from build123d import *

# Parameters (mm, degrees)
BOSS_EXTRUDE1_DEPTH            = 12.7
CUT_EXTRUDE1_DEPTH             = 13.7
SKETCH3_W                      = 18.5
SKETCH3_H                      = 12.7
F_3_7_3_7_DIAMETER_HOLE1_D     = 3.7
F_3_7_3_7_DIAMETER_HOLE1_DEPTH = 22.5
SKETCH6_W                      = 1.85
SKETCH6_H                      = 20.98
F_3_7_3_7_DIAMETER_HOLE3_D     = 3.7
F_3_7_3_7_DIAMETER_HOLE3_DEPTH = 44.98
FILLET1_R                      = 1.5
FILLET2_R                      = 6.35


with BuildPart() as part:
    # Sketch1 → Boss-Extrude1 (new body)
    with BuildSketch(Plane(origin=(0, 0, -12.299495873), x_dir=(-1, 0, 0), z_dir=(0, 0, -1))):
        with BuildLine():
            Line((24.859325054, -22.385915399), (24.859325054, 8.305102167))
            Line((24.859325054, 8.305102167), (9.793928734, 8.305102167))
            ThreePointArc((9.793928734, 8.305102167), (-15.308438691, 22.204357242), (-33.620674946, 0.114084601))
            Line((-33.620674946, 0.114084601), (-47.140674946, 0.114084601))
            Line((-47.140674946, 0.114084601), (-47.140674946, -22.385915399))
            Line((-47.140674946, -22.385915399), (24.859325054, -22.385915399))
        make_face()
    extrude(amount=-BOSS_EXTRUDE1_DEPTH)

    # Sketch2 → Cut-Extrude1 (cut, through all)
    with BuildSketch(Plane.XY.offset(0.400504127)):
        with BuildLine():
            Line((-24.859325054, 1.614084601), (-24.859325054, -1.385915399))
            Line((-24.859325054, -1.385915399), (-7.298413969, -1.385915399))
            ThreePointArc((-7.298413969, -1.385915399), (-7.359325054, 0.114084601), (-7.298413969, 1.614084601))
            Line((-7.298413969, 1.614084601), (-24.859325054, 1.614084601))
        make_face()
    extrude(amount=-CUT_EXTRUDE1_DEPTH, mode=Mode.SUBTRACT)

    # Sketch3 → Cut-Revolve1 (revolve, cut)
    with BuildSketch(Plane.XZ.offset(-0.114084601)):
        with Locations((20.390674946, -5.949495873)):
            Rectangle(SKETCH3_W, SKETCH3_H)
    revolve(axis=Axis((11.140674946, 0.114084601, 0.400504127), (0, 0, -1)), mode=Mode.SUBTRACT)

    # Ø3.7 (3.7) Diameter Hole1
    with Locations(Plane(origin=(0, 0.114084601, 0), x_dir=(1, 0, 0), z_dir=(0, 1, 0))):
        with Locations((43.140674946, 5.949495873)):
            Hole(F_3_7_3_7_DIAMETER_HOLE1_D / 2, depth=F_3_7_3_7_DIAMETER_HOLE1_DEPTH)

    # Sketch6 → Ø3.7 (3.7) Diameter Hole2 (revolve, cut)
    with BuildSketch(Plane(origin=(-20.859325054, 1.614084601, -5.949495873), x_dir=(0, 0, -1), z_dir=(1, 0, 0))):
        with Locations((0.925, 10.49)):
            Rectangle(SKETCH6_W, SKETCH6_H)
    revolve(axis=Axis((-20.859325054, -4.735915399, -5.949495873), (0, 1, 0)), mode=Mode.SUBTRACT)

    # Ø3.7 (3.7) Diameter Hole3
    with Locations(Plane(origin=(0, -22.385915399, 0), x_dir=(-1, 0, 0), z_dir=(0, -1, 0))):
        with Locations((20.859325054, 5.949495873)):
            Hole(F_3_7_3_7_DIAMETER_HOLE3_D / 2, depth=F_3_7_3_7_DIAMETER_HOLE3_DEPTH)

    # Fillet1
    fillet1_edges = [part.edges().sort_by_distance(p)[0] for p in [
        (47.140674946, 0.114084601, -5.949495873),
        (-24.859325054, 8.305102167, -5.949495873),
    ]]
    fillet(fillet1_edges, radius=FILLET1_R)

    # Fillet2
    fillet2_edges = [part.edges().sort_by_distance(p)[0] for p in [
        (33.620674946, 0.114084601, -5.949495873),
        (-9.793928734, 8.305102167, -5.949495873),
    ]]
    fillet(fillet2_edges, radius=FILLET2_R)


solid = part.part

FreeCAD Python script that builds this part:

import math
import FreeCAD as App
import Part
import Sketcher


def edges_at(feature, points):
    """Names of the edges that pass closest to the given points."""
    edges = feature.Shape.Edges
    near = lambda p: min(range(len(edges)), key=lambda i: edges[i].distToShape(Part.Vertex(*p))[0])
    return sorted({f"Edge{near(p) + 1}" for p in points})


def add_polygon(sketch, points):
    """Adds a closed chain of lines whose ends are joined by coincident constraints."""
    first, n = sketch.GeometryCount, len(points)
    for a, b in zip(points, points[1:] + points[:1]):
        sketch.addGeometry(Part.LineSegment(App.Vector(*a, 0), App.Vector(*b, 0)), False)
    for i in range(n):
        sketch.addConstraint(Sketcher.Constraint("Coincident", first + i, 2, first + (i + 1) % n, 1))

doc = App.newDocument("Part")
params = doc.addObject("Spreadsheet::Sheet", "Params")
for row, (alias, value) in enumerate([
    ("sketch1_width", "72 mm"),
    ("sketch1_radius", "22.48 mm"),
    ("sketch1_height", "22.5 mm"),
    ("pad1_length", "12.7 mm"),
    ("sketch2_radius", "18.5 mm"),
    ("sketch2_height", "3 mm"),
    ("sketch3_width", "18.5 mm"),
    ("sketch3_height", "12.7 mm"),
    ("groove_angle", "360 deg"),
    ("sketch4_diameter", "3.7 mm"),
    ("hole_diameter", "3.7 mm"),
    ("hole_depth", "22.5 mm"),
    ("sketch5_width", "20.98 mm"),
    ("sketch5_height", "1.85 mm"),
    ("groove2_angle", "360 deg"),
    ("sketch6_diameter", "3.7 mm"),
    ("hole2_diameter", "3.7 mm"),
    ("hole2_depth", "44.98 mm"),
    ("fillet_radius", "1.5 mm"),
    ("fillet2_radius", "6.35 mm"),
], start=1):
    params.set(f"A{row}", alias)
    params.set(f"B{row}", "=" + value)
    params.setAlias(f"B{row}", alias)

body = doc.addObject("PartDesign::Body", "Body")

# Sketch on XY plane
sketch1 = body.newObject("Sketcher::SketchObject", "Sketch")
sketch1.AttachmentSupport = (doc.getObject("XY_Plane"), [""])
sketch1.MapMode = "FlatFace"
sketch1.AttachmentOffset = App.Placement(App.Vector(0, 0, -12.299496), App.Rotation())
sketch1.addGeometry(Part.LineSegment(App.Vector(-25, -22, 0), App.Vector(-25, 8, 0)), False)
sketch1.addGeometry(Part.LineSegment(App.Vector(-25, 8, 0), App.Vector(-10, 8, 0)), False)
sketch1.addGeometry(Part.ArcOfCircle(Part.Circle(App.Vector(11, 0, 0), App.Vector(0, 0, 1), 22), math.radians(0), math.radians(159)), False)
sketch1.addGeometry(Part.LineSegment(App.Vector(34, 0, 0), App.Vector(47, 0, 0)), False)
sketch1.addGeometry(Part.LineSegment(App.Vector(47, 0, 0), App.Vector(47, -22, 0)), False)
sketch1.addGeometry(Part.LineSegment(App.Vector(47, -22, 0), App.Vector(-25, -22, 0)), False)
sketch1.addConstraint(Sketcher.Constraint("Coincident", 0, 2, 1, 1))
sketch1.addConstraint(Sketcher.Constraint("Coincident", 1, 2, 2, 2))
sketch1.addConstraint(Sketcher.Constraint("Coincident", 2, 1, 3, 1))
sketch1.addConstraint(Sketcher.Constraint("Coincident", 3, 2, 4, 1))
sketch1.addConstraint(Sketcher.Constraint("Coincident", 4, 2, 5, 1))
sketch1.addConstraint(Sketcher.Constraint("Coincident", 5, 2, 0, 1))
sketch1.addConstraint(Sketcher.Constraint("Vertical", 0))
sketch1.addConstraint(Sketcher.Constraint("Horizontal", 1))
sketch1.addConstraint(Sketcher.Constraint("Horizontal", 3))
sketch1.addConstraint(Sketcher.Constraint("Vertical", 4))
sketch1.addConstraint(Sketcher.Constraint("Horizontal", 5))
sketch1.addConstraint(Sketcher.Constraint("DistanceX", 5, 2, 5, 1, 72.0))
sketch1.addConstraint(Sketcher.Constraint("Radius", 2, 22.48))
sketch1.addConstraint(Sketcher.Constraint("DistanceY", 4, 2, 4, 1, 22.5))
sketch1.addConstraint(Sketcher.Constraint("DistanceX", 0, 2, 2, 3, 36.0))
sketch1.addConstraint(Sketcher.Constraint("DistanceY", 4, 2, 2, 3, 22.5))
sketch1.addConstraint(Sketcher.Constraint("DistanceX", 1, 1, 1, 2, 15.065396))
sketch1.addConstraint(Sketcher.Constraint("DistanceX", 1, 2, -1, 1, 9.793929))
sketch1.addConstraint(Sketcher.Constraint("DistanceY", -1, 1, 2, 3, 0.114085))
sketch1.setExpression("Constraints[11]", "Params.sketch1_width")
sketch1.setExpression("Constraints[12]", "Params.sketch1_radius")
sketch1.setExpression("Constraints[13]", "Params.sketch1_height")
pad1 = body.newObject("PartDesign::Pad", "Pad")
pad1.Profile = sketch1
pad1.setExpression("Length", "Params.pad1_length")

# Sketch on XY plane
sketch2 = body.newObject("Sketcher::SketchObject", "Sketch001")
sketch2.AttachmentSupport = (doc.getObject("XY_Plane"), [""])
sketch2.MapMode = "FlatFace"
sketch2.AttachmentOffset = App.Placement(App.Vector(0, 0, 0.400504), App.Rotation())
sketch2.addGeometry(Part.LineSegment(App.Vector(-24.9, 1.6, 0), App.Vector(-24.9, -1.4, 0)), False)
sketch2.addGeometry(Part.LineSegment(App.Vector(-24.9, -1.4, 0), App.Vector(-7.3, -1.4, 0)), False)
sketch2.addGeometry(Part.ArcOfCircle(Part.Circle(App.Vector(11.1, 0.1, 0), App.Vector(0, 0, 1), 18.5), math.radians(175.35), math.radians(184.65)), False)
sketch2.addGeometry(Part.LineSegment(App.Vector(-7.3, 1.6, 0), App.Vector(-24.9, 1.6, 0)), False)
sketch2.addConstraint(Sketcher.Constraint("Coincident", 0, 2, 1, 1))
sketch2.addConstraint(Sketcher.Constraint("Coincident", 1, 2, 2, 2))
sketch2.addConstraint(Sketcher.Constraint("Coincident", 2, 1, 3, 1))
sketch2.addConstraint(Sketcher.Constraint("Coincident", 3, 2, 0, 1))
sketch2.addConstraint(Sketcher.Constraint("Vertical", 0))
sketch2.addConstraint(Sketcher.Constraint("Horizontal", 1))
sketch2.addConstraint(Sketcher.Constraint("Horizontal", 3))
sketch2.addConstraint(Sketcher.Constraint("Vertical", 1, 2, 2, 1))
sketch2.addConstraint(Sketcher.Constraint("Radius", 2, 18.5))
sketch2.addConstraint(Sketcher.Constraint("DistanceY", 0, 2, 0, 1, 3.0))
sketch2.addConstraint(Sketcher.Constraint("DistanceX", 0, 2, 2, 3, 36.0))
sketch2.addConstraint(Sketcher.Constraint("DistanceX", -1, 1, 2, 3, 11.140675))
sketch2.addConstraint(Sketcher.Constraint("DistanceY", -1, 1, 2, 3, 0.114085))
sketch2.setExpression("Constraints[8]", "Params.sketch2_radius")
sketch2.setExpression("Constraints[9]", "Params.sketch2_height")
pocket1 = body.newObject("PartDesign::Pocket", "Pocket")
pocket1.Profile = sketch2
pocket1.Type = "ThroughAll"

# Sketch on XZ plane
sketch3 = body.newObject("Sketcher::SketchObject", "Sketch002")
sketch3.AttachmentSupport = (doc.getObject("XZ_Plane"), [""])
sketch3.MapMode = "FlatFace"
sketch3.AttachmentOffset = App.Placement(App.Vector(0, 0, -0.114085), App.Rotation())
add_polygon(sketch3, [(11, 0), (11, -12), (30, -12), (30, 0)])  # lines 0-3
sketch3.addGeometry(Part.LineSegment(App.Vector(11, 0, 0), App.Vector(11, -12, 0)), True)  # axis
sketch3.addConstraint(Sketcher.Constraint("Vertical", 0))
sketch3.addConstraint(Sketcher.Constraint("Horizontal", 1))
sketch3.addConstraint(Sketcher.Constraint("Vertical", 2))
sketch3.addConstraint(Sketcher.Constraint("Horizontal", 3))
sketch3.addConstraint(Sketcher.Constraint("Vertical", 4))
sketch3.addConstraint(Sketcher.Constraint("Coincident", 4, 1, 3, 2))
sketch3.addConstraint(Sketcher.Constraint("Horizontal", 1, 2, 4, 2))
sketch3.addConstraint(Sketcher.Constraint("DistanceX", 1, 1, 1, 2, 18.5))
sketch3.addConstraint(Sketcher.Constraint("DistanceY", 0, 2, 0, 1, 12.7))
sketch3.addConstraint(Sketcher.Constraint("DistanceX", -1, 1, 0, 2, 11.140675))
sketch3.addConstraint(Sketcher.Constraint("DistanceY", 0, 2, -1, 1, 12.299496))
sketch3.setExpression("Constraints[11]", "Params.sketch3_width")
sketch3.setExpression("Constraints[12]", "Params.sketch3_height")
groove = body.newObject("PartDesign::Groove", "Groove")
groove.Profile = sketch3
groove.ReferenceAxis = (sketch3, ["Axis0"])
groove.setExpression("Angle", "Params.groove_angle")

# Sketch on XZ plane
sketch4 = body.newObject("Sketcher::SketchObject", "Sketch003")
sketch4.AttachmentSupport = (doc.getObject("XZ_Plane"), [""])
sketch4.MapMode = "FlatFace"
sketch4.AttachmentOffset = App.Placement(App.Vector(0, 0, -0.114085), App.Rotation())
sketch4.addGeometry(Part.Circle(App.Vector(43.1, -5.9, 0), App.Vector(0, 0, 1), 1.9), False)
sketch4.addConstraint(Sketcher.Constraint("Diameter", 0, 3.7))
sketch4.addConstraint(Sketcher.Constraint("DistanceX", -1, 1, 0, 3, 43.140675))
sketch4.addConstraint(Sketcher.Constraint("DistanceY", 0, 3, -1, 1, 5.949496))
sketch4.setExpression("Constraints[0]", "Params.sketch4_diameter")
doc.recompute()
hole = body.newObject("PartDesign::Hole", "Hole")
hole.Profile = sketch4
hole.ThreadType = "None"
hole.setExpression("Diameter", "Params.hole_diameter")
hole.DepthType = "Dimension"
hole.setExpression("Depth", "Params.hole_depth")
hole.DrillPoint = "Flat"
hole.Reversed = True

# Sketch on YZ plane
sketch5 = body.newObject("Sketcher::SketchObject", "Sketch004")
sketch5.AttachmentSupport = (doc.getObject("YZ_Plane"), [""])
sketch5.MapMode = "FlatFace"
sketch5.AttachmentOffset = App.Placement(App.Vector(0, 0, -20.859325), App.Rotation())
add_polygon(sketch5, [(22.6, -5.9), (1.6, -5.9), (1.6, -7.8), (22.6, -7.8)])  # lines 0-3
sketch5.addGeometry(Part.LineSegment(App.Vector(1.6, -5.9, 0), App.Vector(22.6, -5.9, 0)), True)  # axis
sketch5.addConstraint(Sketcher.Constraint("Horizontal", 0))
sketch5.addConstraint(Sketcher.Constraint("Vertical", 1))
sketch5.addConstraint(Sketcher.Constraint("Horizontal", 2))
sketch5.addConstraint(Sketcher.Constraint("Vertical", 3))
sketch5.addConstraint(Sketcher.Constraint("Horizontal", 4))
sketch5.addConstraint(Sketcher.Constraint("Coincident", 4, 1, 0, 2))
sketch5.addConstraint(Sketcher.Constraint("Vertical", 2, 2, 4, 2))
sketch5.addConstraint(Sketcher.Constraint("DistanceX", 0, 2, 0, 1, 20.98))
sketch5.addConstraint(Sketcher.Constraint("DistanceY", 1, 2, 1, 1, 1.85))
sketch5.addConstraint(Sketcher.Constraint("DistanceX", -1, 1, 0, 2, 1.614085))
sketch5.addConstraint(Sketcher.Constraint("DistanceY", 0, 2, -1, 1, 5.949496))
sketch5.setExpression("Constraints[11]", "Params.sketch5_width")
sketch5.setExpression("Constraints[12]", "Params.sketch5_height")
groove2 = body.newObject("PartDesign::Groove", "Groove001")
groove2.Profile = sketch5
groove2.ReferenceAxis = (sketch5, ["Axis0"])
groove2.setExpression("Angle", "Params.groove2_angle")

# Sketch on XZ plane
sketch6 = body.newObject("Sketcher::SketchObject", "Sketch005")
sketch6.AttachmentSupport = (doc.getObject("XZ_Plane"), [""])
sketch6.MapMode = "FlatFace"
sketch6.AttachmentOffset = App.Placement(App.Vector(0, 0, 22.385915), App.Rotation())
sketch6.addGeometry(Part.Circle(App.Vector(-20.9, -5.9, 0), App.Vector(0, 0, 1), 1.9), False)
sketch6.addConstraint(Sketcher.Constraint("Diameter", 0, 3.7))
sketch6.addConstraint(Sketcher.Constraint("DistanceX", 0, 3, -1, 1, 20.859325))
sketch6.addConstraint(Sketcher.Constraint("DistanceY", 0, 3, -1, 1, 5.949496))
sketch6.setExpression("Constraints[0]", "Params.sketch6_diameter")
doc.recompute()
hole2 = body.newObject("PartDesign::Hole", "Hole001")
hole2.Profile = sketch6
hole2.ThreadType = "None"
hole2.setExpression("Diameter", "Params.hole2_diameter")
hole2.DepthType = "Dimension"
hole2.setExpression("Depth", "Params.hole2_depth")
hole2.DrillPoint = "Flat"
doc.recompute()

fillet = body.newObject("PartDesign::Fillet", "Fillet")
fillet.Base = (hole2, edges_at(hole2, [(47.141, 0.114, -5.949), (-24.859, 8.305, -5.949)]))
fillet.setExpression("Radius", "Params.fillet_radius")
doc.recompute()

fillet2 = body.newObject("PartDesign::Fillet", "Fillet001")
fillet2.Base = (fillet, edges_at(fillet, [(33.621, 0.114, -5.949), (-9.794, 8.305, -5.949)]))
fillet2.setExpression("Radius", "Params.fillet2_radius")

doc.recompute()
